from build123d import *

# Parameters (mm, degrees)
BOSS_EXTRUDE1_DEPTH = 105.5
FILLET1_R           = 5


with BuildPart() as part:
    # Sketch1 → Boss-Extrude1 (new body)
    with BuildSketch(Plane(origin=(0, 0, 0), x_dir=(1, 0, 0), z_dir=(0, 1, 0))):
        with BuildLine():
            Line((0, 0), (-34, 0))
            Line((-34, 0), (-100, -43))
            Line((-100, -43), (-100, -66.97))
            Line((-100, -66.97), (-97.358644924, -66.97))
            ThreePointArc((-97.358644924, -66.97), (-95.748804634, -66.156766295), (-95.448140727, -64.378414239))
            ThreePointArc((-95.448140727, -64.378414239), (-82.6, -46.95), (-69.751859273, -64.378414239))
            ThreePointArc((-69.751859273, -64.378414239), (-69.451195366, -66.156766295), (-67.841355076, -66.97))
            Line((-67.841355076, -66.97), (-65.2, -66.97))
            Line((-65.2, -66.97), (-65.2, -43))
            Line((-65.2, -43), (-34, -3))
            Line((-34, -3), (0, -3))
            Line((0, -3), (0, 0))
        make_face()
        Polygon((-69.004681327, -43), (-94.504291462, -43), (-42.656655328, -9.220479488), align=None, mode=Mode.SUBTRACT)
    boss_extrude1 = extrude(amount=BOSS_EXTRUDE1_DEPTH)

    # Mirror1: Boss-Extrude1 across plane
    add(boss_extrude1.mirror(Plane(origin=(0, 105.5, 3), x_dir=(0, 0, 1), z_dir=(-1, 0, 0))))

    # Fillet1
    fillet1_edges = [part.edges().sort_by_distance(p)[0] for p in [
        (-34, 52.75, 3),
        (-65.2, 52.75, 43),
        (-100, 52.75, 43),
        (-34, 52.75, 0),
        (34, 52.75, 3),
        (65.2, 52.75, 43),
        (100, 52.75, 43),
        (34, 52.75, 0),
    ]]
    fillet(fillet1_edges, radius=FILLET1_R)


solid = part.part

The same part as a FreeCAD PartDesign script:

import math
import FreeCAD as App
import Part
import Sketcher

V = App.Vector
Q = App.Units.Quantity


def edges_at(feature, points):
    """Names of the edges that pass closest to the given points."""
    edges = feature.Shape.Edges
    near = lambda p: min(range(len(edges)), key=lambda i: edges[i].distToShape(Part.Vertex(*p))[0])
    return sorted({f"Edge{near(p) + 1}" for p in points})


def add_polygon(sketch, points):
    """Adds a closed chain of lines whose ends are joined by coincident constraints."""
    first, n = sketch.GeometryCount, len(points)
    for a, b in zip(points, points[1:] + points[:1]):
        sketch.addGeometry(Part.LineSegment(App.Vector(*a, 0), App.Vector(*b, 0)), False)
    for i in range(n):
        sketch.addConstraint(Sketcher.Constraint("Coincident", first + i, 2, first + (i + 1) % n, 1))

doc = App.newDocument("Part")
params = doc.addObject("Spreadsheet::Sheet", "Params")
for row, (alias, value) in enumerate([
    ("sketch1_radius", "2 mm"),
    ("sketch1_width", "34 mm"),
    ("sketch1_height", "3 mm"),
    ("sketch1_radius2", "13.45 mm"),
    ("sketch1_height2", "23.97 mm"),
    ("pad1_length", "105.5 mm"),
    ("fillet_radius", "5 mm"),
], start=1):
    params.set(f"A{row}", alias)
    params.set(f"B{row}", "=" + value)
    params.setAlias(f"B{row}", alias)

body = doc.addObject("PartDesign::Body", "Body")

# Sketch on XZ plane
sketch1 = body.newObject("Sketcher::SketchObject", "Sketch")
sketch1.AttachmentSupport = (doc.getObject("XZ_Plane"), [""])
sketch1.MapMode = "FlatFace"
sketch1.addGeometry(Part.LineSegment(V(0, 0, 0), V(-34, 0, 0)), False)  # 0
sketch1.addGeometry(Part.LineSegment(V(-34, 0, 0), V(-100, 43, 0)), False)  # 1
sketch1.addGeometry(Part.LineSegment(V(-100, 43, 0), V(-100, 67, 0)), False)  # 2
sketch1.addGeometry(Part.LineSegment(V(-100, 67, 0), V(-97.4, 67, 0)), False)  # 3
sketch1.addGeometry(Part.ArcOfCircle(Part.Circle(V(-97.4, 65, 0), V(0, 0, 1), 2), math.radians(-17), math.radians(90)), False)  # 4
sketch1.addGeometry(Part.ArcOfCircle(Part.Circle(V(-82.6, 60.4, 0), V(0, 0, 1), 13.4), math.radians(163), math.radians(377)), False)  # 5
sketch1.addGeometry(Part.ArcOfCircle(Part.Circle(V(-67.8, 65, 0), V(0, 0, 1), 2), math.radians(90), math.radians(197)), False)  # 6
sketch1.addGeometry(Part.LineSegment(V(-67.8, 67, 0), V(-65.2, 67, 0)), False)  # 7
sketch1.addGeometry(Part.LineSegment(V(-65.2, 67, 0), V(-65.2, 43, 0)), False)  # 8
sketch1.addGeometry(Part.LineSegment(V(-65.2, 43, 0), V(-34, 3, 0)), False)  # 9
sketch1.addGeometry(Part.LineSegment(V(-34, 3, 0), V(0, 3, 0)), False)  # 10
sketch1.addGeometry(Part.LineSegment(V(0, 3, 0), V(0, 0, 0)), False)  # 11
add_polygon(sketch1, [(-42.7, 9.2), (-69, 43), (-94.5, 43)])  # lines 12-14
sketch1.addConstraint([
    Sketcher.Constraint("Coincident", 0, 2, 1, 1),
    Sketcher.Constraint("Coincident", 1, 2, 2, 1),
    Sketcher.Constraint("Coincident", 2, 2, 3, 1),
    Sketcher.Constraint("Tangent", 3, 2, 4, 2),
    Sketcher.Constraint("Tangent", 4, 1, 5, 1),
    Sketcher.Constraint("Tangent", 5, 2, 6, 2),
    Sketcher.Constraint("Tangent", 6, 1, 7, 1),
    Sketcher.Constraint("Coincident", 7, 2, 8, 1),
    Sketcher.Constraint("Coincident", 8, 2, 9, 1),
    Sketcher.Constraint("Coincident", 9, 2, 10, 1),
    Sketcher.Constraint("Coincident", 10, 2, 11, 1),
    Sketcher.Constraint("Coincident", 11, 2, 0, 1),
    Sketcher.Constraint("Horizontal", 0),
    Sketcher.Constraint("Vertical", 2),
    Sketcher.Constraint("Horizontal", 3),
    Sketcher.Constraint("Horizontal", 7),
    Sketcher.Constraint("Vertical", 8),
    Sketcher.Constraint("Horizontal", 10),
    Sketcher.Constraint("Vertical", 11),
    Sketcher.Constraint("Horizontal", 13),
    Sketcher.Constraint("Coincident", 11, 2, -1, 1),
    Sketcher.Constraint("Equal", 4, 6),
    Sketcher.Constraint("Parallel", 9, 12),
    Sketcher.Constraint("Parallel", 1, 14),
    Sketcher.Constraint("Horizontal", 4, 3, 6, 3),
    Sketcher.Constraint("Horizontal", 1, 2, 8, 2),
    Sketcher.Constraint("Horizontal", 8, 2, 12, 2),
    Sketcher.Constraint("Vertical", 0, 2, 9, 2),
    Sketcher.Constraint("Equal", 3, 7),
    Sketcher.Constraint("Radius", 4, Q("2 mm")),
    Sketcher.Constraint("DistanceX", 0, 2, 0, 1, Q("34 mm")),
    Sketcher.Constraint("DistanceY", 11, 2, 11, 1, Q("3 mm")),
    Sketcher.Constraint("Radius", 5, Q("13.45 mm")),
    Sketcher.Constraint("DistanceX", 1, 2, -1, 1, Q("100 mm")),
    Sketcher.Constraint("DistanceY", -1, 1, 1, 2, Q("43 mm")),
    Sketcher.Constraint("DistanceY", 2, 1, 2, 2, Q("23.97 mm")),
    Sketcher.Constraint("DistanceX", 5, 3, -1, 1, Q("82.6 mm")),
    Sketcher.Constraint("DistanceY", -1, 1, 5, 3, Q("60.4 mm")),
    Sketcher.Constraint("Distance", 14, Q("61.8808 mm")),
    Sketcher.Constraint("DistanceX", 12, 2, -1, 1, Q("69.004681 mm")),
])
sketch1.setExpression("Constraints[32]", "Params.sketch1_radius")
sketch1.setExpression("Constraints[33]", "Params.sketch1_width")
sketch1.setExpression("Constraints[34]", "Params.sketch1_height")
sketch1.setExpression("Constraints[35]", "Params.sketch1_radius2")
sketch1.setExpression("Constraints[38]", "Params.sketch1_height2")
pad1 = body.newObject("PartDesign::Pad", "Pad")
pad1.Profile = sketch1
pad1.setExpression("Length", "Params.pad1_length")
pad1.Reversed = True
doc.recompute()

mirrored = body.newObject("PartDesign::Mirrored", "Mirrored")
mirrored.Originals = [pad1]
mirrored.MirrorPlane = (doc.getObject("YZ_Plane"), [""])
body.Tip = mirrored
doc.recompute()

fillet = body.newObject("PartDesign::Fillet", "Fillet")
fillet.Base = (mirrored, edges_at(mirrored, [
    (-34, 52.75, 3),
    (-65.2, 52.75, 43),
    (-100, 52.75, 43),
    (-34, 52.75, 0),
    (34, 52.75, 3),
    (65.2, 52.75, 43),
    (100, 52.75, 43),
    (34, 52.75, 0),
]))
fillet.setExpression("Radius", "Params.fillet_radius")

doc.recompute()
